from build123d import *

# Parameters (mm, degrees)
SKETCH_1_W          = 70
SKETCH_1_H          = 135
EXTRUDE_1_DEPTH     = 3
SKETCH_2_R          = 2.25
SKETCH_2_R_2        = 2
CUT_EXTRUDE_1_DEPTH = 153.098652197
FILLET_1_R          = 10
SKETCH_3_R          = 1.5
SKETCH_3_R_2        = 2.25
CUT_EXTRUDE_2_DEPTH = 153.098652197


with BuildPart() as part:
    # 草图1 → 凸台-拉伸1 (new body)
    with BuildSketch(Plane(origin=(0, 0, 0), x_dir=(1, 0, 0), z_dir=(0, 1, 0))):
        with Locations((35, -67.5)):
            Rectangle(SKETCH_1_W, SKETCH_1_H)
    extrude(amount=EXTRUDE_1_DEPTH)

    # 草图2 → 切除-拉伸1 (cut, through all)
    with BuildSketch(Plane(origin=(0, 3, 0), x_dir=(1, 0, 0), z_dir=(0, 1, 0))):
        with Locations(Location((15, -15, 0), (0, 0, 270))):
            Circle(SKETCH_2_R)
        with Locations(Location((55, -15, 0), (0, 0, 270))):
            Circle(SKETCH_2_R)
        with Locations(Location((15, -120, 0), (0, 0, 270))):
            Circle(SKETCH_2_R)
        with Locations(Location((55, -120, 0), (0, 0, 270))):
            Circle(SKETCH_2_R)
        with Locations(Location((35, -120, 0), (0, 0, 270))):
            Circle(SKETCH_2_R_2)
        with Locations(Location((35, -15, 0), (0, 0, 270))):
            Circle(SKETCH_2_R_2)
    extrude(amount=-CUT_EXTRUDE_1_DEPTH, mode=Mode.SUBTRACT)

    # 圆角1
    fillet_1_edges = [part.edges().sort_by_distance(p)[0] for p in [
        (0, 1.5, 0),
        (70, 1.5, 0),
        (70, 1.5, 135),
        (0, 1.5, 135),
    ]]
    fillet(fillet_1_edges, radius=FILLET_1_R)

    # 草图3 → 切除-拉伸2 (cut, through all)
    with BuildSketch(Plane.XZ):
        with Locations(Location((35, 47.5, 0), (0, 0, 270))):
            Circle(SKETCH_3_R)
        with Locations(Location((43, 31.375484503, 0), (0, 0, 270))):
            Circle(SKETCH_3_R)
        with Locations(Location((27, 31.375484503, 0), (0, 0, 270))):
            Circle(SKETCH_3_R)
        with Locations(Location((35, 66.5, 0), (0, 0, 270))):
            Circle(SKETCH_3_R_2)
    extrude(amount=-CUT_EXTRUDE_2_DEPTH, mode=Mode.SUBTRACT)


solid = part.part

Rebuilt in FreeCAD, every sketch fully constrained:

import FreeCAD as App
import Part
import Sketcher

V = App.Vector
Q = App.Units.Quantity


def edges_at(feature, points):
    """Names of the edges that pass closest to the given points."""
    edges = feature.Shape.Edges
    near = lambda p: min(range(len(edges)), key=lambda i: edges[i].distToShape(Part.Vertex(*p))[0])
    return sorted({f"Edge{near(p) + 1}" for p in points})


def add_polygon(sketch, points):
    """Adds a closed chain of lines whose ends are joined by coincident constraints."""
    first, n = sketch.GeometryCount, len(points)
    for a, b in zip(points, points[1:] + points[:1]):
        sketch.addGeometry(Part.LineSegment(App.Vector(*a, 0), App.Vector(*b, 0)), False)
    for i in range(n):
        sketch.addConstraint(Sketcher.Constraint("Coincident", first + i, 2, first + (i + 1) % n, 1))

doc = App.newDocument("Part")
body = doc.addObject("PartDesign::Body", "Body")

# Sketch on XZ plane
sketch1 = doc.addObject("Sketcher::SketchObject", "Sketch")
body.addObject(sketch1)
sketch1.AttachmentSupport = (doc.XZ_Plane, [""])
sketch1.MapMode = "FlatFace"
add_polygon(sketch1, [(0, 0), (0, 135), (70, 135), (70, 0)])  # lines 0-3
sketch1.addConstraint(Sketcher.Constraint("Vertical", 0))
sketch1.addConstraint(Sketcher.Constraint("Horizontal", 1))
sketch1.addConstraint(Sketcher.Constraint("Vertical", 2))
sketch1.addConstraint(Sketcher.Constraint("Horizontal", 3))
sketch1.addConstraint(Sketcher.Constraint("Coincident", 3, 2, -1, 1))
sketch1.addConstraint(Sketcher.Constraint("DistanceX", 1, 1, 1, 2, Q("70 mm")))
sketch1.addConstraint(Sketcher.Constraint("DistanceY", 0, 1, 0, 2, Q("135 mm")))
pad1 = doc.addObject("PartDesign::Pad", "Pad")
body.addObject(pad1)
pad1.Profile = sketch1
pad1.Length = 3
pad1.Reversed = True

# Sketch on XZ plane
sketch2 = doc.addObject("Sketcher::SketchObject", "Sketch001")
body.addObject(sketch2)
sketch2.AttachmentSupport = (doc.XZ_Plane, [""])
sketch2.MapMode = "FlatFace"
sketch2.AttachmentOffset = App.Placement(V(0, 0, -3), App.Rotation())
sketch2.addGeometry(Part.Circle(V(15, 15, 0), V(0, 0, 1), 2.2), False)
sketch2.addGeometry(Part.Circle(V(55, 15, 0), V(0, 0, 1), 2.2), False)
sketch2.addGeometry(Part.Circle(V(15, 120, 0), V(0, 0, 1), 2.2), False)
sketch2.addGeometry(Part.Circle(V(55, 120, 0), V(0, 0, 1), 2.2), False)
sketch2.addGeometry(Part.Circle(V(35, 120, 0), V(0, 0, 1), 2), False)
sketch2.addGeometry(Part.Circle(V(35, 15, 0), V(0, 0, 1), 2), False)
sketch2.addConstraint(Sketcher.Constraint("Equal", 0, 1))
sketch2.addConstraint(Sketcher.Constraint("Equal", 1, 2))
sketch2.addConstraint(Sketcher.Constraint("Equal", 2, 3))
sketch2.addConstraint(Sketcher.Constraint("Equal", 4, 5))
sketch2.addConstraint(Sketcher.Constraint("Horizontal", 0, 3, 1, 3))
sketch2.addConstraint(Sketcher.Constraint("Horizontal", 2, 3, 3, 3))
sketch2.addConstraint(Sketcher.Constraint("Horizontal", 3, 3, 4, 3))
sketch2.addConstraint(Sketcher.Constraint("Horizontal", 1, 3, 5, 3))
sketch2.addConstraint(Sketcher.Constraint("Vertical", 0, 3, 2, 3))
sketch2.addConstraint(Sketcher.Constraint("Vertical", 1, 3, 3, 3))
sketch2.addConstraint(Sketcher.Constraint("Vertical", 4, 3, 5, 3))
sketch2.addConstraint(Sketcher.Constraint("Diameter", 4, Q("4 mm")))
sketch2.addConstraint(Sketcher.Constraint("Diameter", 0, Q("4.5 mm")))
sketch2.addConstraint(Sketcher.Constraint("DistanceX", -1, 1, 0, 3, Q("15 mm")))
sketch2.addConstraint(Sketcher.Constraint("DistanceY", -1, 1, 0, 3, Q("15 mm")))
sketch2.addConstraint(Sketcher.Constraint("DistanceX", -1, 1, 1, 3, Q("55 mm")))
sketch2.addConstraint(Sketcher.Constraint("DistanceY", -1, 1, 2, 3, Q("120 mm")))
sketch2.addConstraint(Sketcher.Constraint("DistanceX", -1, 1, 4, 3, Q("35 mm")))
pocket1 = doc.addObject("PartDesign::Pocket", "Pocket")
body.addObject(pocket1)
pocket1.Profile = sketch2
pocket1.Type = "ThroughAll"
pocket1.Reversed = True
doc.recompute()

fillet = doc.addObject("PartDesign::Fillet", "Fillet")
body.addObject(fillet)
fillet.Base = (pocket1, edges_at(pocket1, [
    (0, 1.5, 0),
    (70, 1.5, 0),
    (70, 1.5, 135),
    (0, 1.5, 135),
]))
fillet.Radius = 10

# Sketch on XZ plane
sketch3 = doc.addObject("Sketcher::SketchObject", "Sketch002")
body.addObject(sketch3)
sketch3.AttachmentSupport = (doc.XZ_Plane, [""])
sketch3.MapMode = "FlatFace"
sketch3.addGeometry(Part.Circle(V(35, 47.5, 0), V(0, 0, 1), 1.5), False)
sketch3.addGeometry(Part.Circle(V(43, 31.4, 0), V(0, 0, 1), 1.5), False)
sketch3.addGeometry(Part.Circle(V(27, 31.4, 0), V(0, 0, 1), 1.5), False)
sketch3.addGeometry(Part.Circle(V(35, 66.5, 0), V(0, 0, 1), 2.2), False)
sketch3.addConstraint(Sketcher.Constraint("Equal", 0, 1))
sketch3.addConstraint(Sketcher.Constraint("Equal", 1, 2))
sketch3.addConstraint(Sketcher.Constraint("Horizontal", 1, 3, 2, 3))
sketch3.addConstraint(Sketcher.Constraint("Vertical", 0, 3, 3, 3))
sketch3.addConstraint(Sketcher.Constraint("Diameter", 0, Q("3 mm")))
sketch3.addConstraint(Sketcher.Constraint("Diameter", 3, Q("4.5 mm")))
sketch3.addConstraint(Sketcher.Constraint("DistanceX", -1, 1, 0, 3, Q("35 mm")))
sketch3.addConstraint(Sketcher.Constraint("DistanceX", -1, 1, 1, 3, Q("43 mm")))
sketch3.addConstraint(Sketcher.Constraint("DistanceX", -1, 1, 2, 3, Q("27 mm")))
sketch3.addConstraint(Sketcher.Constraint("DistanceY", 0, 3, 3, 3, Q("19 mm")))
sketch3.addConstraint(Sketcher.Constraint("DistanceY", -1, 1, 0, 3, Q("47.5 mm")))
sketch3.addConstraint(Sketcher.Constraint("DistanceY", -1, 1, 1, 3, Q("31.375485 mm")))
pocket2 = doc.addObject("PartDesign::Pocket", "Pocket001")
body.addObject(pocket2)
pocket2.Profile = sketch3
pocket2.Type = "ThroughAll"

doc.recompute()
